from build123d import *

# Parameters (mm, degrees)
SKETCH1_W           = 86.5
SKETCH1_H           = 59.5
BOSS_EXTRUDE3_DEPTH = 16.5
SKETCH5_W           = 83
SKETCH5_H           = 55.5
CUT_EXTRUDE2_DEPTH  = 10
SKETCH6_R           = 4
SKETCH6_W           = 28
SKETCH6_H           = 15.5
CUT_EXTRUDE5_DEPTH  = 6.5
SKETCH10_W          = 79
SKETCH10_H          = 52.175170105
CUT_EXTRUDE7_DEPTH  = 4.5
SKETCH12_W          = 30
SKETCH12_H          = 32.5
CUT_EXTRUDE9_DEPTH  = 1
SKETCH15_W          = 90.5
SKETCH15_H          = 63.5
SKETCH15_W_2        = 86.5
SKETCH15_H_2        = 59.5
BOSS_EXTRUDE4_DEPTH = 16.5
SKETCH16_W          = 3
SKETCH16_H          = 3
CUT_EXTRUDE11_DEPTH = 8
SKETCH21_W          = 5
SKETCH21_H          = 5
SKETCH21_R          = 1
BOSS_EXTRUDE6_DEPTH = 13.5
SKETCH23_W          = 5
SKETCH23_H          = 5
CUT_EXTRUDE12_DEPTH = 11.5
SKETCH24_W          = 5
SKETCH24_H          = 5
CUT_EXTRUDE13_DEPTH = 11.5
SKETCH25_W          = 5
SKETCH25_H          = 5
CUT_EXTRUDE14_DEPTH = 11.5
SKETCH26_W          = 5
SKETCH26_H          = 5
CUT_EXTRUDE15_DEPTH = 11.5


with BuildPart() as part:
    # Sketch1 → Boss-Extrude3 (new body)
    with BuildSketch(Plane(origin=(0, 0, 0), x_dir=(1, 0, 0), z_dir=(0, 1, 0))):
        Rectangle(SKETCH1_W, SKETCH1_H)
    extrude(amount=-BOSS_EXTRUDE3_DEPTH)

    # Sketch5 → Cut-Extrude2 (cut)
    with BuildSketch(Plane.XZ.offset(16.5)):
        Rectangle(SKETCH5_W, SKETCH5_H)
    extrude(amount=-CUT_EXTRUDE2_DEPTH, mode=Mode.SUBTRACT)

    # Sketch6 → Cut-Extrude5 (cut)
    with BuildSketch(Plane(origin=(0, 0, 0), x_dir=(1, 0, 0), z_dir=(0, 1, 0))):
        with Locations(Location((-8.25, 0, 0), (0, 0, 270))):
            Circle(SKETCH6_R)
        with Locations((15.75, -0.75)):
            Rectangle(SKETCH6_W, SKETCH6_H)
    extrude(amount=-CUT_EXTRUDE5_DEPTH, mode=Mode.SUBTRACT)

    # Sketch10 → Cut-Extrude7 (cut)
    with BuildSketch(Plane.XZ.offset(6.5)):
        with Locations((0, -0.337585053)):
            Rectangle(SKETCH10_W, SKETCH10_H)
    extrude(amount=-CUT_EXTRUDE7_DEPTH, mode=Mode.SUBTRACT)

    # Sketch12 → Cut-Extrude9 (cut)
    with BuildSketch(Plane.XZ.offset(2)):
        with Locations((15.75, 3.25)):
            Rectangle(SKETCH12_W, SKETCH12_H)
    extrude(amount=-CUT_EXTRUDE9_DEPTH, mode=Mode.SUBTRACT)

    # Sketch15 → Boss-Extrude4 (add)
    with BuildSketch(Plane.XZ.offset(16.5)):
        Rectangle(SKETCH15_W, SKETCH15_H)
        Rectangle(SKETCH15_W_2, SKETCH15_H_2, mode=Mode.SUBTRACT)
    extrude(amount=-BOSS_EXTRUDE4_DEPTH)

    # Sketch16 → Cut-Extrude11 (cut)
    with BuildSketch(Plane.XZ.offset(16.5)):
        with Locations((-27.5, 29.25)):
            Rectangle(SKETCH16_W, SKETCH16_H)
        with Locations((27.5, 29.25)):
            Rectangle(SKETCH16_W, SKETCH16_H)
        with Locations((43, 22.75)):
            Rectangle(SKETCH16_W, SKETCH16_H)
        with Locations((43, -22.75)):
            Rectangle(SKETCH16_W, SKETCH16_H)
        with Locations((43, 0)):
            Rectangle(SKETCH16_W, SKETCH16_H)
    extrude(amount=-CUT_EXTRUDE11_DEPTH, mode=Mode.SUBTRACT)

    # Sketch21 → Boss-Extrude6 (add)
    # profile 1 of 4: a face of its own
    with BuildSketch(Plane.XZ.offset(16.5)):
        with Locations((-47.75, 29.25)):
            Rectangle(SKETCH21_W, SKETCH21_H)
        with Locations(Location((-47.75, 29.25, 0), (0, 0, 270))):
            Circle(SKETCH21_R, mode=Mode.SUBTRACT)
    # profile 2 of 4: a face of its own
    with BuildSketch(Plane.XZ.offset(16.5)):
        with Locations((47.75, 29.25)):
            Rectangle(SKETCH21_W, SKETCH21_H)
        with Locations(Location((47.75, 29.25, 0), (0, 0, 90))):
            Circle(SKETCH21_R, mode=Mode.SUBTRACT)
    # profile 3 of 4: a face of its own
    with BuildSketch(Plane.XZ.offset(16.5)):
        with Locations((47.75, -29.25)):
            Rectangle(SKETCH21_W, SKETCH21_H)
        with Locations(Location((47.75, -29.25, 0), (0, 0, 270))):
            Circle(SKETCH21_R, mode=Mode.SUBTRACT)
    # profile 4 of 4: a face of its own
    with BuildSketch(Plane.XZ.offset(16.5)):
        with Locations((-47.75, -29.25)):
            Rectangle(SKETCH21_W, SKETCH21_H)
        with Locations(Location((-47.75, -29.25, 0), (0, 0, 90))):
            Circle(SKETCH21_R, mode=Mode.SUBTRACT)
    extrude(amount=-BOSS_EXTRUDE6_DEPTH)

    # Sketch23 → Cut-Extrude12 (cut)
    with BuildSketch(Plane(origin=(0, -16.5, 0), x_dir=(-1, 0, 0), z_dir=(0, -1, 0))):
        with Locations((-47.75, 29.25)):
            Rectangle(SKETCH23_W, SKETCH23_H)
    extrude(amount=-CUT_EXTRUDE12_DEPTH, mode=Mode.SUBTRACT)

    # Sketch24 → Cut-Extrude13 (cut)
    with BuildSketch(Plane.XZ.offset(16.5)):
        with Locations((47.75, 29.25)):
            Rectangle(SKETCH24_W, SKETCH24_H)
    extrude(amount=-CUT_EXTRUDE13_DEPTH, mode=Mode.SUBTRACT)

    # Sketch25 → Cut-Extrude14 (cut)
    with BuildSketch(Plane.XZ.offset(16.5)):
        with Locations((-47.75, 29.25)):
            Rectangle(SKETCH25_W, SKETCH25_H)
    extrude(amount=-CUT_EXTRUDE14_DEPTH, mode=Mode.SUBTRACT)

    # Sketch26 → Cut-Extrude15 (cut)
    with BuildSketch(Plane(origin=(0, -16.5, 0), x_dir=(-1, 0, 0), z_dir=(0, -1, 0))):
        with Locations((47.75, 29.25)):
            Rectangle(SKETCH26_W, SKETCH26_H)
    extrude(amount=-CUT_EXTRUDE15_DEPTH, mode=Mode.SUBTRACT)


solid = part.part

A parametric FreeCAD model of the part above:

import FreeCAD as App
import Part
import Sketcher


def add_polygon(sketch, points):
    """Adds a closed chain of lines whose ends are joined by coincident constraints."""
    first, n = sketch.GeometryCount, len(points)
    for a, b in zip(points, points[1:] + points[:1]):
        sketch.addGeometry(Part.LineSegment(App.Vector(*a, 0), App.Vector(*b, 0)), False)
    for i in range(n):
        sketch.addConstraint(Sketcher.Constraint("Coincident", first + i, 2, first + (i + 1) % n, 1))

doc = App.newDocument("Part")
body = doc.addObject("PartDesign::Body", "Body")

sketch1 = doc.addObject("Sketcher::SketchObject", "Sketch")
body.addObject(sketch1)
sketch1.AttachmentSupport = (doc.XZ_Plane, [""])
sketch1.MapMode = "FlatFace"
add_polygon(sketch1, [(-43, -30), (-43, 30), (43, 30), (43, -30)])
sketch1.addConstraint(Sketcher.Constraint("Vertical", 0))
sketch1.addConstraint(Sketcher.Constraint("Horizontal", 1))
sketch1.addConstraint(Sketcher.Constraint("Vertical", 2))
sketch1.addConstraint(Sketcher.Constraint("Horizontal", 3))
sketch1.addConstraint(Sketcher.Constraint("Symmetric", 0, 2, 2, 2, -1, 1))
sketch1.addConstraint(Sketcher.Constraint("DistanceX", 1, 1, 1, 2, 86.5))
sketch1.addConstraint(Sketcher.Constraint("DistanceY", 0, 1, 0, 2, 59.5))
pad1 = doc.addObject("PartDesign::Pad", "Pad")
body.addObject(pad1)
pad1.Profile = sketch1
pad1.Length = 16.5

sketch2 = doc.addObject("Sketcher::SketchObject", "Sketch001")
body.addObject(sketch2)
sketch2.AttachmentSupport = (doc.XZ_Plane, [""])
sketch2.MapMode = "FlatFace"
sketch2.AttachmentOffset = App.Placement(App.Vector(0, 0, 16.5), App.Rotation())
add_polygon(sketch2, [(-42, 28), (-42, -28), (42, -28), (42, 28)])
sketch2.addConstraint(Sketcher.Constraint("Vertical", 0))
sketch2.addConstraint(Sketcher.Constraint("Horizontal", 1))
sketch2.addConstraint(Sketcher.Constraint("Vertical", 2))
sketch2.addConstraint(Sketcher.Constraint("Horizontal", 3))
sketch2.addConstraint(Sketcher.Constraint("Symmetric", 0, 2, 2, 2, -1, 1))
sketch2.addConstraint(Sketcher.Constraint("DistanceX", 1, 1, 1, 2, 83.0))
sketch2.addConstraint(Sketcher.Constraint("DistanceY", 0, 2, 0, 1, 55.5))
pocket1 = doc.addObject("PartDesign::Pocket", "Pocket")
body.addObject(pocket1)
pocket1.Profile = sketch2
pocket1.Length = 10

sketch3 = doc.addObject("Sketcher::SketchObject", "Sketch002")
body.addObject(sketch3)
sketch3.AttachmentSupport = (doc.XZ_Plane, [""])
sketch3.MapMode = "FlatFace"
sketch3.addGeometry(Part.Circle(App.Vector(-8.2, 0, 0), App.Vector(0, 0, 1), 4), False)
add_polygon(sketch3, [(1.8, -7), (1.8, 8.5), (29.8, 8.5), (29.8, -7)])
sketch3.addConstraint(Sketcher.Constraint("Vertical", 1))
sketch3.addConstraint(Sketcher.Constraint("Horizontal", 2))
sketch3.addConstraint(Sketcher.Constraint("Vertical", 3))
sketch3.addConstraint(Sketcher.Constraint("Horizontal", 4))
sketch3.addConstraint(Sketcher.Constraint("PointOnObject", 0, 3, -1))
sketch3.addConstraint(Sketcher.Constraint("Diameter", 0, 8.0))
sketch3.addConstraint(Sketcher.Constraint("DistanceX", 2, 1, 2, 2, 28.0))
sketch3.addConstraint(Sketcher.Constraint("DistanceY", 1, 1, 1, 2, 15.5))
sketch3.addConstraint(Sketcher.Constraint("DistanceY", 3, 2, -1, 1, 7.0))
sketch3.addConstraint(Sketcher.Constraint("DistanceX", 0, 3, 1, 2, 10.0))
sketch3.addConstraint(Sketcher.Constraint("DistanceX", 0, 3, -1, 1, 8.25))
pocket2 = doc.addObject("PartDesign::Pocket", "Pocket001")
body.addObject(pocket2)
pocket2.Profile = sketch3
pocket2.Length = 6.5
pocket2.Reversed = True

sketch4 = doc.addObject("Sketcher::SketchObject", "Sketch003")
body.addObject(sketch4)
sketch4.AttachmentSupport = (doc.XZ_Plane, [""])
sketch4.MapMode = "FlatFace"
sketch4.AttachmentOffset = App.Placement(App.Vector(0, 0, 6.5), App.Rotation())
add_polygon(sketch4, [(-40, 26), (-40, -26), (40, -26), (40, 26)])
sketch4.addConstraint(Sketcher.Constraint("Vertical", 0))
sketch4.addConstraint(Sketcher.Constraint("Horizontal", 1))
sketch4.addConstraint(Sketcher.Constraint("Vertical", 2))
sketch4.addConstraint(Sketcher.Constraint("Horizontal", 3))
sketch4.addConstraint(Sketcher.Constraint("DistanceX", 1, 1, 1, 2, 79.0))
sketch4.addConstraint(Sketcher.Constraint("DistanceX", 0, 2, -1, 1, 39.5))
sketch4.addConstraint(Sketcher.Constraint("DistanceY", -1, 1, 2, 2, 25.75))
sketch4.addConstraint(Sketcher.Constraint("DistanceY", 0, 2, 0, 1, 52.17517))
pocket3 = doc.addObject("PartDesign::Pocket", "Pocket002")
body.addObject(pocket3)
pocket3.Profile = sketch4
pocket3.Length = 4.5

sketch5 = doc.addObject("Sketcher::SketchObject", "Sketch004")
body.addObject(sketch5)
sketch5.AttachmentSupport = (doc.XZ_Plane, [""])
sketch5.MapMode = "FlatFace"
sketch5.AttachmentOffset = App.Placement(App.Vector(0, 0, 2), App.Rotation())
add_polygon(sketch5, [(1, 20), (1, -13), (31, -13), (31, 20)])
sketch5.addConstraint(Sketcher.Constraint("Vertical", 0))
sketch5.addConstraint(Sketcher.Constraint("Horizontal", 1))
sketch5.addConstraint(Sketcher.Constraint("Vertical", 2))
sketch5.addConstraint(Sketcher.Constraint("Horizontal", 3))
sketch5.addConstraint(Sketcher.Constraint("DistanceX", 1, 1, 1, 2, 30.0))
sketch5.addConstraint(Sketcher.Constraint("DistanceY", 0, 2, 0, 1, 32.5))
sketch5.addConstraint(Sketcher.Constraint("DistanceY", 0, 2, -1, 1, 13.0))
sketch5.addConstraint(Sketcher.Constraint("DistanceX", -1, 1, 0, 2, 0.75))
pocket4 = doc.addObject("PartDesign::Pocket", "Pocket003")
body.addObject(pocket4)
pocket4.Profile = sketch5
pocket4.Length = 1

sketch6 = doc.addObject("Sketcher::SketchObject", "Sketch005")
body.addObject(sketch6)
sketch6.AttachmentSupport = (doc.XZ_Plane, [""])
sketch6.MapMode = "FlatFace"
sketch6.AttachmentOffset = App.Placement(App.Vector(0, 0, 16.5), App.Rotation())
add_polygon(sketch6, [(-45, 32), (-45, -32), (45, -32), (45, 32)])
add_polygon(sketch6, [(43, -30), (-43, -30), (-43, 30), (43, 30)])
sketch6.addConstraint(Sketcher.Constraint("Vertical", 0))
sketch6.addConstraint(Sketcher.Constraint("Horizontal", 1))
sketch6.addConstraint(Sketcher.Constraint("Vertical", 2))
sketch6.addConstraint(Sketcher.Constraint("Horizontal", 3))
sketch6.addConstraint(Sketcher.Constraint("Horizontal", 4))
sketch6.addConstraint(Sketcher.Constraint("Vertical", 5))
sketch6.addConstraint(Sketcher.Constraint("Horizontal", 6))
sketch6.addConstraint(Sketcher.Constraint("Vertical", 7))
sketch6.addConstraint(Sketcher.Constraint("Symmetric", 0, 2, 2, 2, -1, 1))
sketch6.addConstraint(Sketcher.Constraint("Symmetric", 4, 2, 6, 2, -1, 1))
sketch6.addConstraint(Sketcher.Constraint("DistanceX", 1, 1, 1, 2, 90.5))
sketch6.addConstraint(Sketcher.Constraint("DistanceX", 4, 2, 4, 1, 86.5))
sketch6.addConstraint(Sketcher.Constraint("DistanceY", 0, 2, 0, 1, 63.5))
sketch6.addConstraint(Sketcher.Constraint("DistanceY", 5, 1, 5, 2, 59.5))
pad2 = doc.addObject("PartDesign::Pad", "Pad001")
body.addObject(pad2)
pad2.Profile = sketch6
pad2.Length = 16.5
pad2.Reversed = True

sketch7 = doc.addObject("Sketcher::SketchObject", "Sketch006")
body.addObject(sketch7)
sketch7.AttachmentSupport = (doc.XZ_Plane, [""])
sketch7.MapMode = "FlatFace"
sketch7.AttachmentOffset = App.Placement(App.Vector(0, 0, 16.5), App.Rotation())
add_polygon(sketch7, [(-29, 30.8), (-29, 27.8), (-26, 27.8), (-26, 30.8)])
add_polygon(sketch7, [(26, 30.8), (26, 27.8), (29, 27.8), (29, 30.8)])
add_polygon(sketch7, [(41.5, 24.2), (41.5, 21.2), (44.5, 21.2), (44.5, 24.2)])
add_polygon(sketch7, [(41.5, -21.2), (41.5, -24.2), (44.5, -24.2), (44.5, -21.2)])
add_polygon(sketch7, [(41.5, 1.5), (41.5, -1.5), (44.5, -1.5), (44.5, 1.5)])
sketch7.addConstraint(Sketcher.Constraint("Vertical", 0))
sketch7.addConstraint(Sketcher.Constraint("Horizontal", 1))
sketch7.addConstraint(Sketcher.Constraint("Vertical", 2))
sketch7.addConstraint(Sketcher.Constraint("Horizontal", 3))
sketch7.addConstraint(Sketcher.Constraint("Vertical", 4))
sketch7.addConstraint(Sketcher.Constraint("Horizontal", 5))
sketch7.addConstraint(Sketcher.Constraint("Vertical", 6))
sketch7.addConstraint(Sketcher.Constraint("Horizontal", 7))
sketch7.addConstraint(Sketcher.Constraint("Vertical", 8))
sketch7.addConstraint(Sketcher.Constraint("Horizontal", 9))
sketch7.addConstraint(Sketcher.Constraint("Vertical", 10))
sketch7.addConstraint(Sketcher.Constraint("Horizontal", 11))
sketch7.addConstraint(Sketcher.Constraint("Vertical", 12))
sketch7.addConstraint(Sketcher.Constraint("Horizontal", 13))
sketch7.addConstraint(Sketcher.Constraint("Vertical", 14))
sketch7.addConstraint(Sketcher.Constraint("Horizontal", 15))
sketch7.addConstraint(Sketcher.Constraint("Vertical", 16))
sketch7.addConstraint(Sketcher.Constraint("Horizontal", 17))
sketch7.addConstraint(Sketcher.Constraint("Vertical", 18))
sketch7.addConstraint(Sketcher.Constraint("Horizontal", 19))
sketch7.addConstraint(Sketcher.Constraint("Symmetric", 1, 2, 4, 2, -2))
sketch7.addConstraint(Sketcher.Constraint("Symmetric", 3, 2, 6, 2, -2))
sketch7.addConstraint(Sketcher.Constraint("Symmetric", 11, 2, 12, 2, -1))
sketch7.addConstraint(Sketcher.Constraint("Symmetric", 9, 2, 14, 2, -1))
sketch7.addConstraint(Sketcher.Constraint("Vertical", 15, 2, 16, 2))
sketch7.addConstraint(Sketcher.Constraint("Vertical", 14, 2, 17, 2))
sketch7.addConstraint(Sketcher.Constraint("Equal", 7, 9))
sketch7.addConstraint(Sketcher.Constraint("Equal", 19, 0))
sketch7.addConstraint(Sketcher.Constraint("Equal", 6, 8))
sketch7.addConstraint(Sketcher.Constraint("Equal", 14, 16))
sketch7.addConstraint(Sketcher.Constraint("DistanceX", 1, 1, 1, 2, 3.0))
sketch7.addConstraint(Sketcher.Constraint("DistanceX", 0, 2, -1, 1, 29.0))
sketch7.addConstraint(Sketcher.Constraint("DistanceY", 12, 2, 5, 2, 52.0))
sketch7.addConstraint(Sketcher.Constraint("DistanceX", -1, 1, 8, 2, 41.5))
sketch7.addConstraint(Sketcher.Constraint("DistanceY", 16, 2, -1, 1, 1.5))
sketch7.addConstraint(Sketcher.Constraint("DistanceY", 8, 2, 5, 2, 6.5))
pocket5 = doc.addObject("PartDesign::Pocket", "Pocket004")
body.addObject(pocket5)
pocket5.Profile = sketch7
pocket5.Length = 8

sketch8 = doc.addObject("Sketcher::SketchObject", "Sketch007")
body.addObject(sketch8)
sketch8.AttachmentSupport = (doc.XZ_Plane, [""])
sketch8.MapMode = "FlatFace"
sketch8.AttachmentOffset = App.Placement(App.Vector(0, 0, 16.5), App.Rotation())
add_polygon(sketch8, [(-50.2, 31.8), (-50.2, 26.8), (-45.2, 26.8), (-45.2, 31.8)])
sketch8.addGeometry(Part.Circle(App.Vector(-47.8, 29.2, 0), App.Vector(0, 0, 1), 1), False)
add_polygon(sketch8, [(45.2, 31.8), (45.2, 26.8), (50.2, 26.8), (50.2, 31.8)])
sketch8.addGeometry(Part.Circle(App.Vector(47.8, 29.2, 0), App.Vector(0, 0, 1), 1), False)
add_polygon(sketch8, [(45.2, -26.8), (45.2, -31.8), (50.2, -31.8), (50.2, -26.8)])
sketch8.addGeometry(Part.Circle(App.Vector(47.8, -29.2, 0), App.Vector(0, 0, 1), 1), False)
add_polygon(sketch8, [(-50.2, -26.8), (-50.2, -31.8), (-45.2, -31.8), (-45.2, -26.8)])
sketch8.addGeometry(Part.Circle(App.Vector(-47.8, -29.2, 0), App.Vector(0, 0, 1), 1), False)
sketch8.addConstraint(Sketcher.Constraint("Vertical", 0))
sketch8.addConstraint(Sketcher.Constraint("Horizontal", 1))
sketch8.addConstraint(Sketcher.Constraint("Vertical", 2))
sketch8.addConstraint(Sketcher.Constraint("Horizontal", 3))
sketch8.addConstraint(Sketcher.Constraint("Vertical", 5))
sketch8.addConstraint(Sketcher.Constraint("Horizontal", 6))
sketch8.addConstraint(Sketcher.Constraint("Vertical", 7))
sketch8.addConstraint(Sketcher.Constraint("Horizontal", 8))
sketch8.addConstraint(Sketcher.Constraint("Vertical", 10))
sketch8.addConstraint(Sketcher.Constraint("Horizontal", 11))
sketch8.addConstraint(Sketcher.Constraint("Vertical", 12))
sketch8.addConstraint(Sketcher.Constraint("Horizontal", 13))
sketch8.addConstraint(Sketcher.Constraint("Vertical", 15))
sketch8.addConstraint(Sketcher.Constraint("Horizontal", 16))
sketch8.addConstraint(Sketcher.Constraint("Vertical", 17))
sketch8.addConstraint(Sketcher.Constraint("Horizontal", 18))
sketch8.addConstraint(Sketcher.Constraint("Equal", 4, 9))
sketch8.addConstraint(Sketcher.Constraint("Equal", 9, 14))
sketch8.addConstraint(Sketcher.Constraint("Equal", 14, 19))
sketch8.addConstraint(Sketcher.Constraint("Symmetric", 4, 3, 14, 3, -1, 1))
sketch8.addConstraint(Sketcher.Constraint("Symmetric", 9, 3, 19, 3, -1, 1))
sketch8.addConstraint(Sketcher.Constraint("Symmetric", 2, 2, 10, 2, -1, 1))
sketch8.addConstraint(Sketcher.Constraint("Symmetric", 0, 2, 12, 2, -1, 1))
sketch8.addConstraint(Sketcher.Constraint("Symmetric", 7, 2, 15, 2, -1, 1))
sketch8.addConstraint(Sketcher.Constraint("Symmetric", 5, 2, 17, 2, -1, 1))
sketch8.addConstraint(Sketcher.Constraint("Symmetric", 4, 3, 9, 3, -2))
sketch8.addConstraint(Sketcher.Constraint("Symmetric", 1, 2, 5, 2, -2))
sketch8.addConstraint(Sketcher.Constraint("Symmetric", 3, 2, 7, 2, -2))
sketch8.addConstraint(Sketcher.Constraint("Equal", 18, 0))
sketch8.addConstraint(Sketcher.Constraint("Diameter", 4, 2.0))
sketch8.addConstraint(Sketcher.Constraint("DistanceX", 1, 1, 1, 2, 5.0))
sketch8.addConstraint(Sketcher.Constraint("DistanceY", 19, 3, 0, 2, 56.0))
sketch8.addConstraint(Sketcher.Constraint("DistanceX", 0, 2, 9, 3, 98.0))
sketch8.addConstraint(Sketcher.Constraint("DistanceX", 4, 3, 9, 3, 95.5))
sketch8.addConstraint(Sketcher.Constraint("DistanceY", 14, 3, 9, 3, 58.5))
pad3 = doc.addObject("PartDesign::Pad", "Pad002")
body.addObject(pad3)
pad3.Profile = sketch8
pad3.Length = 13.5
pad3.Reversed = True

sketch9 = doc.addObject("Sketcher::SketchObject", "Sketch008")
body.addObject(sketch9)
sketch9.AttachmentSupport = (doc.XZ_Plane, [""])
sketch9.MapMode = "FlatFace"
sketch9.AttachmentOffset = App.Placement(App.Vector(0, 0, 16.5), App.Rotation())
add_polygon(sketch9, [(50, -32), (50, -27), (45, -27), (45, -32)])
sketch9.addConstraint(Sketcher.Constraint("Vertical", 0))
sketch9.addConstraint(Sketcher.Constraint("Horizontal", 1))
sketch9.addConstraint(Sketcher.Constraint("Vertical", 2))
sketch9.addConstraint(Sketcher.Constraint("Horizontal", 3))
sketch9.addConstraint(Sketcher.Constraint("Equal", 3, 0))
sketch9.addConstraint(Sketcher.Constraint("DistanceX", 1, 2, 1, 1, 5.0))
sketch9.addConstraint(Sketcher.Constraint("DistanceX", -1, 1, 0, 2, 50.25))
sketch9.addConstraint(Sketcher.Constraint("DistanceY", 0, 2, -1, 1, 26.75))
pocket6 = doc.addObject("PartDesign::Pocket", "Pocket005")
body.addObject(pocket6)
pocket6.Profile = sketch9
pocket6.Length = 11.5

sketch10 = doc.addObject("Sketcher::SketchObject", "Sketch009")
body.addObject(sketch10)
sketch10.AttachmentSupport = (doc.XZ_Plane, [""])
sketch10.MapMode = "FlatFace"
sketch10.AttachmentOffset = App.Placement(App.Vector(0, 0, 16.5), App.Rotation())
add_polygon(sketch10, [(45, 32), (45, 27), (50, 27), (50, 32)])
sketch10.addConstraint(Sketcher.Constraint("Vertical", 0))
sketch10.addConstraint(Sketcher.Constraint("Horizontal", 1))
sketch10.addConstraint(Sketcher.Constraint("Vertical", 2))
sketch10.addConstraint(Sketcher.Constraint("Horizontal", 3))
sketch10.addConstraint(Sketcher.Constraint("Equal", 3, 0))
sketch10.addConstraint(Sketcher.Constraint("DistanceX", 1, 1, 1, 2, 5.0))
sketch10.addConstraint(Sketcher.Constraint("DistanceX", -1, 1, 0, 2, 45.25))
sketch10.addConstraint(Sketcher.Constraint("DistanceY", -1, 1, 0, 2, 26.75))
pocket7 = doc.addObject("PartDesign::Pocket", "Pocket006")
body.addObject(pocket7)
pocket7.Profile = sketch10
pocket7.Length = 11.5

sketch11 = doc.addObject("Sketcher::SketchObject", "Sketch010")
body.addObject(sketch11)
sketch11.AttachmentSupport = (doc.XZ_Plane, [""])
sketch11.MapMode = "FlatFace"
sketch11.AttachmentOffset = App.Placement(App.Vector(0, 0, 16.5), App.Rotation())
add_polygon(sketch11, [(-50, 32), (-50, 27), (-45, 27), (-45, 32)])
sketch11.addConstraint(Sketcher.Constraint("Vertical", 0))
sketch11.addConstraint(Sketcher.Constraint("Horizontal", 1))
sketch11.addConstraint(Sketcher.Constraint("Vertical", 2))
sketch11.addConstraint(Sketcher.Constraint("Horizontal", 3))
sketch11.addConstraint(Sketcher.Constraint("Equal", 3, 0))
sketch11.addConstraint(Sketcher.Constraint("DistanceX", 1, 1, 1, 2, 5.0))
sketch11.addConstraint(Sketcher.Constraint("DistanceX", 0, 2, -1, 1, 50.25))
sketch11.addConstraint(Sketcher.Constraint("DistanceY", -1, 1, 0, 2, 26.75))
pocket8 = doc.addObject("PartDesign::Pocket", "Pocket007")
body.addObject(pocket8)
pocket8.Profile = sketch11
pocket8.Length = 11.5

sketch12 = doc.addObject("Sketcher::SketchObject", "Sketch011")
body.addObject(sketch12)
sketch12.AttachmentSupport = (doc.XZ_Plane, [""])
sketch12.MapMode = "FlatFace"
sketch12.AttachmentOffset = App.Placement(App.Vector(0, 0, 16.5), App.Rotation())
add_polygon(sketch12, [(-45, -32), (-45, -27), (-50, -27), (-50, -32)])
sketch12.addConstraint(Sketcher.Constraint("Vertical", 0))
sketch12.addConstraint(Sketcher.Constraint("Horizontal", 1))
sketch12.addConstraint(Sketcher.Constraint("Vertical", 2))
sketch12.addConstraint(Sketcher.Constraint("Horizontal", 3))
sketch12.addConstraint(Sketcher.Constraint("Equal", 3, 0))
sketch12.addConstraint(Sketcher.Constraint("DistanceX", 1, 2, 1, 1, 5.0))
sketch12.addConstraint(Sketcher.Constraint("DistanceX", 0, 2, -1, 1, 45.25))
sketch12.addConstraint(Sketcher.Constraint("DistanceY", 0, 2, -1, 1, 26.75))
pocket9 = doc.addObject("PartDesign::Pocket", "Pocket008")
body.addObject(pocket9)
pocket9.Profile = sketch12
pocket9.Length = 11.5

doc.recompute()
